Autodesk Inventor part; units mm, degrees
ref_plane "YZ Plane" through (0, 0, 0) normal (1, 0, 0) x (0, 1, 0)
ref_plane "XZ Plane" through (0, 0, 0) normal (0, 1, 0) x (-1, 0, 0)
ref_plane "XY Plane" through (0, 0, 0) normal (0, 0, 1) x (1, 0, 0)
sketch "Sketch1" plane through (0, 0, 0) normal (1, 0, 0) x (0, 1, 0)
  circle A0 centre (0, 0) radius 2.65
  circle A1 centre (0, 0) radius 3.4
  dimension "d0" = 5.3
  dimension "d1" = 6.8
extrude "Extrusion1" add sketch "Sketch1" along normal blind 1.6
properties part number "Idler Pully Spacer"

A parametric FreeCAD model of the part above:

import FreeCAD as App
import Part
import Sketcher
from FreeCAD import Vector
Q = App.Units.Quantity

doc = App.newDocument("Part")
body = doc.addObject("PartDesign::Body", "Body")

sketch1 = body.newObject("Sketcher::SketchObject", "Sketch")
sketch1.AttachmentSupport = (doc.getObject("YZ_Plane"), [""])
sketch1.MapMode = "FlatFace"
sketch1.addGeometry([
    Part.Circle(Vector(0, 0, 0), Vector(0, 0, 1), 3.4),
    Part.Circle(Vector(0, 0, 0), Vector(0, 0, 1), 2.6),
], False)
sketch1.addConstraint([
    Sketcher.Constraint("Coincident", 0, 3, -1, 1),
    Sketcher.Constraint("Coincident", 1, 3, -1, 1),
    Sketcher.Constraint("Diameter", 0, Q("6.8 mm")),
    Sketcher.Constraint("Diameter", 1, Q("5.3 mm")),
])
pad1 = body.newObject("PartDesign::Pad", "Pad")
pad1.Profile = sketch1
pad1.Length = 1.6

doc.recompute()
